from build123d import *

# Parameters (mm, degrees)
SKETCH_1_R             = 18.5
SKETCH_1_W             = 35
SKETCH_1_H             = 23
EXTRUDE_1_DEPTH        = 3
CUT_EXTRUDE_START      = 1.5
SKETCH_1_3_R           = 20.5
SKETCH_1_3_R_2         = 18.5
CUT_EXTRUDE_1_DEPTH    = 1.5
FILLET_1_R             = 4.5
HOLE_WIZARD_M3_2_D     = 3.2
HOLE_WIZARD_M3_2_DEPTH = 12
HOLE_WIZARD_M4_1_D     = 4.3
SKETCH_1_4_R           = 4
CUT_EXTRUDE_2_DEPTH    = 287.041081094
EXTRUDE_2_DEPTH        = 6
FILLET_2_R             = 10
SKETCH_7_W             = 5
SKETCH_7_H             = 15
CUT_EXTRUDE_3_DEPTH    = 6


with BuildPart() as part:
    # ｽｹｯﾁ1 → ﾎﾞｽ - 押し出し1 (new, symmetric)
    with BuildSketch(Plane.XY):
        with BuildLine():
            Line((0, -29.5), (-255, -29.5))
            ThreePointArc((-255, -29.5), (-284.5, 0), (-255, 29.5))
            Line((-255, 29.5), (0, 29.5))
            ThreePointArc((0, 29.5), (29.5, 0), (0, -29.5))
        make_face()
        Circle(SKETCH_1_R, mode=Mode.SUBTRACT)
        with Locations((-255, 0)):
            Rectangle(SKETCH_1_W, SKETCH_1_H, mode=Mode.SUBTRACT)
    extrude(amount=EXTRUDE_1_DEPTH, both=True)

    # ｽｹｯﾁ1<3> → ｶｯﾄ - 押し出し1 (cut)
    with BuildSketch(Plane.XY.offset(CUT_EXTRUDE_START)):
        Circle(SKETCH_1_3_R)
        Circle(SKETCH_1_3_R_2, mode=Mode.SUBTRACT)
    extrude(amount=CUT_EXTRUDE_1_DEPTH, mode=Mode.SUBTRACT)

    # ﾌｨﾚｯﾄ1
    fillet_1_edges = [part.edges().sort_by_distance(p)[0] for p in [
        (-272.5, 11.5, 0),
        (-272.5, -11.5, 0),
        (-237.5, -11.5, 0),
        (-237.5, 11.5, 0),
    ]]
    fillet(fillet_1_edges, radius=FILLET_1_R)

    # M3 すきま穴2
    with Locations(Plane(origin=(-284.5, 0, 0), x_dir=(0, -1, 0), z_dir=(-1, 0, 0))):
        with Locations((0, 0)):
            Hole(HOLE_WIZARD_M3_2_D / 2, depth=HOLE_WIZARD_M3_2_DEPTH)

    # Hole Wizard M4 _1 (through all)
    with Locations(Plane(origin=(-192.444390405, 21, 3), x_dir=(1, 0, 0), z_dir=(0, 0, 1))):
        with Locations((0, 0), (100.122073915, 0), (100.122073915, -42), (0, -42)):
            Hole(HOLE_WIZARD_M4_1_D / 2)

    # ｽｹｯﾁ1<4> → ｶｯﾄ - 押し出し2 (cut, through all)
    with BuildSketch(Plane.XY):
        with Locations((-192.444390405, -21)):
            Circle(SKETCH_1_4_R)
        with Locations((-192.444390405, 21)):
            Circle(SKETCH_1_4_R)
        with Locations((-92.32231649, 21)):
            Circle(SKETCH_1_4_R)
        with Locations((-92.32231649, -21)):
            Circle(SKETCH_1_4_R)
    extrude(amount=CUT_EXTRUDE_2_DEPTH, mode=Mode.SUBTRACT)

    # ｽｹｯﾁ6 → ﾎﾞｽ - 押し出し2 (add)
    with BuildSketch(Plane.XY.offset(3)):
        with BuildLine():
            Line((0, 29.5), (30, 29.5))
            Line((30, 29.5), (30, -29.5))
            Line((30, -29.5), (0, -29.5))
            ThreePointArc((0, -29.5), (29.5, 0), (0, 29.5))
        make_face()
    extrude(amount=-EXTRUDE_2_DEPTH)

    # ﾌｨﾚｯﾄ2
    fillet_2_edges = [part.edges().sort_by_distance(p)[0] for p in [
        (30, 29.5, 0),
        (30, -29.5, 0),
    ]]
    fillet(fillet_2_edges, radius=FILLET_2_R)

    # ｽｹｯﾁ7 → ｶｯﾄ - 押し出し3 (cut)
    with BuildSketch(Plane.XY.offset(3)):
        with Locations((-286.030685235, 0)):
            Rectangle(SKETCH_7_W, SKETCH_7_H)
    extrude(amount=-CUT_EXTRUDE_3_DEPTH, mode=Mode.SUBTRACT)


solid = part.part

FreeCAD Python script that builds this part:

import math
import FreeCAD as App
import Part
import Sketcher
from FreeCAD import Vector


def edges_at(feature, points):
    """Names of the edges that pass closest to the given points."""
    edges = feature.Shape.Edges
    near = lambda p: min(range(len(edges)), key=lambda i: edges[i].distToShape(Part.Vertex(*p))[0])
    return sorted({f"Edge{near(p) + 1}" for p in points})

doc = App.newDocument("Part")
params = doc.addObject("Spreadsheet::Sheet", "Params")
for row, (alias, value) in enumerate([
    ("sketch1_diameter", "37 mm"),
    ("sketch1_radius", "29.5 mm"),
    ("sketch1_width", "255 mm"),
    ("sketch1_width2", "35 mm"),
    ("sketch1_height", "23 mm"),
    ("pad1_length", "6 mm"),
    ("sketch2_diameter", "41 mm"),
    ("sketch2_diameter2", "37 mm"),
    ("pocket1_length", "1.5 mm"),
    ("fillet_radius", "4.5 mm"),
    ("sketch3_diameter", "3.2 mm"),
    ("hole_diameter", "3.2 mm"),
    ("hole_depth", "12 mm"),
    ("sketch4_diameter", "4.3 mm"),
    ("hole2_diameter", "4.3 mm"),
    ("sketch5_diameter", "8 mm"),
    ("sketch6_radius", "29.5 mm"),
    ("sketch6_width", "30 mm"),
    ("pad2_length", "6 mm"),
    ("fillet2_radius", "10 mm"),
    ("sketch7_width", "5 mm"),
    ("sketch7_height", "15 mm"),
    ("pocket3_length", "6 mm"),
], start=1):
    params.set(f"A{row}", alias)
    params.set(f"B{row}", "=" + value)
    params.setAlias(f"B{row}", alias)

body = doc.addObject("PartDesign::Body", "Body")

# Sketch on XY plane
sketch1 = body.newObject("Sketcher::SketchObject", "Sketch")
sketch1.AttachmentSupport = (doc.getObject("XY_Plane"), [""])
sketch1.MapMode = "FlatFace"
sketch1.addGeometry([
    Part.LineSegment(Vector(-255, -29.5, 0), Vector(0, -29.5, 0)),  # 0
    Part.ArcOfCircle(Part.Circle(Vector(0, 0, 0), Vector(0, 0, 1), 29.5), math.radians(-90), math.radians(90)),  # 1
    Part.LineSegment(Vector(0, 29.5, 0), Vector(-255, 29.5, 0)),  # 2
    Part.ArcOfCircle(Part.Circle(Vector(-255, 0, 0), Vector(0, 0, 1), 29.5), math.radians(90), math.radians(270)),  # 3
    Part.Circle(Vector(0, 0, 0), Vector(0, 0, 1), 18.5),  # 4
    Part.LineSegment(Vector(-272.5, -11.5, 0), Vector(-272.5, 11.5, 0)),  # 5
    Part.LineSegment(Vector(-272.5, 11.5, 0), Vector(-237.5, 11.5, 0)),  # 6
    Part.LineSegment(Vector(-237.5, 11.5, 0), Vector(-237.5, -11.5, 0)),  # 7
    Part.LineSegment(Vector(-237.5, -11.5, 0), Vector(-272.5, -11.5, 0)),  # 8
], False)
sketch1.addConstraint([
    Sketcher.Constraint("Tangent", 0, 2, 1, 1),
    Sketcher.Constraint("Tangent", 1, 2, 2, 1),
    Sketcher.Constraint("Tangent", 2, 2, 3, 1),
    Sketcher.Constraint("Tangent", 3, 2, 0, 1),
    Sketcher.Constraint("Coincident", 5, 2, 6, 1),
    Sketcher.Constraint("Coincident", 6, 2, 7, 1),
    Sketcher.Constraint("Coincident", 7, 2, 8, 1),
    Sketcher.Constraint("Coincident", 8, 2, 5, 1),
    Sketcher.Constraint("Horizontal", 0),
    Sketcher.Constraint("Horizontal", 2),
    Sketcher.Constraint("Vertical", 5),
    Sketcher.Constraint("Horizontal", 6),
    Sketcher.Constraint("Vertical", 7),
    Sketcher.Constraint("Horizontal", 8),
    Sketcher.Constraint("Coincident", 1, 3, -1, 1),
    Sketcher.Constraint("Coincident", 4, 3, -1, 1),
    Sketcher.Constraint("Diameter", 4, 37.0),
    Sketcher.Constraint("Radius", 1, 29.5),
    Sketcher.Constraint("DistanceX", 0, 1, 0, 2, 255.0),
    Sketcher.Constraint("DistanceX", 6, 1, 6, 2, 35.0),
    Sketcher.Constraint("DistanceY", 5, 1, 5, 2, 23.0),
    Sketcher.Constraint("DistanceY", 5, 2, 2, 2, 18.0),
    Sketcher.Constraint("DistanceX", 5, 2, -1, 1, 272.5),
])
sketch1.setExpression("Constraints[16]", "Params.sketch1_diameter")
sketch1.setExpression("Constraints[17]", "Params.sketch1_radius")
sketch1.setExpression("Constraints[18]", "Params.sketch1_width")
sketch1.setExpression("Constraints[19]", "Params.sketch1_width2")
sketch1.setExpression("Constraints[20]", "Params.sketch1_height")
pad1 = body.newObject("PartDesign::Pad", "Pad")
pad1.Profile = sketch1
pad1.setExpression("Length", "Params.pad1_length")
pad1.Midplane = True

# Sketch on XY plane
sketch2 = body.newObject("Sketcher::SketchObject", "Sketch001")
sketch2.AttachmentSupport = (doc.getObject("XY_Plane"), [""])
sketch2.MapMode = "FlatFace"
sketch2.AttachmentOffset = App.Placement(Vector(0, 0, 1.5), App.Rotation())
sketch2.addGeometry([
    Part.Circle(Vector(0, 0, 0), Vector(0, 0, 1), 20.5),
    Part.Circle(Vector(0, 0, 0), Vector(0, 0, 1), 18.5),
], False)
sketch2.addConstraint([
    Sketcher.Constraint("Coincident", 0, 3, -1, 1),
    Sketcher.Constraint("Coincident", 1, 3, -1, 1),
    Sketcher.Constraint("Diameter", 0, 41.0),
    Sketcher.Constraint("Diameter", 1, 37.0),
])
sketch2.setExpression("Constraints[2]", "Params.sketch2_diameter")
sketch2.setExpression("Constraints[3]", "Params.sketch2_diameter2")
pocket1 = body.newObject("PartDesign::Pocket", "Pocket")
pocket1.Profile = sketch2
pocket1.setExpression("Length", "Params.pocket1_length")
pocket1.Reversed = True
doc.recompute()

fillet = body.newObject("PartDesign::Fillet", "Fillet")
fillet.Base = (pocket1, edges_at(pocket1, [
    (-272.5, 11.5, 0),
    (-272.5, -11.5, 0),
    (-237.5, -11.5, 0),
    (-237.5, 11.5, 0),
]))
fillet.setExpression("Radius", "Params.fillet_radius")

# Sketch on YZ plane
sketch3 = body.newObject("Sketcher::SketchObject", "Sketch002")
sketch3.AttachmentSupport = (doc.getObject("YZ_Plane"), [""])
sketch3.MapMode = "FlatFace"
sketch3.AttachmentOffset = App.Placement(Vector(0, 0, -284.5), App.Rotation())
sketch3.addGeometry(Part.Circle(Vector(0, 0, 0), Vector(0, 0, 1), 1.6), False)
sketch3.addConstraint([
    Sketcher.Constraint("Coincident", 0, 3, -1, 1),
    Sketcher.Constraint("Diameter", 0, 3.2),
])
sketch3.setExpression("Constraints[1]", "Params.sketch3_diameter")
doc.recompute()
hole = body.newObject("PartDesign::Hole", "Hole")
hole.Profile = sketch3
hole.ThreadType = "None"
hole.setExpression("Diameter", "Params.hole_diameter")
hole.DepthType = "Dimension"
hole.setExpression("Depth", "Params.hole_depth")
hole.DrillPoint = "Flat"
hole.Reversed = True

# Sketch on XY plane
sketch4 = body.newObject("Sketcher::SketchObject", "Sketch003")
sketch4.AttachmentSupport = (doc.getObject("XY_Plane"), [""])
sketch4.MapMode = "FlatFace"
sketch4.AttachmentOffset = App.Placement(Vector(0, 0, 3), App.Rotation())
sketch4.addGeometry([
    Part.Circle(Vector(-192.44439, 21, 0), Vector(0, 0, 1), 2.15),
    Part.Circle(Vector(-92.322316, 21, 0), Vector(0, 0, 1), 2.15),
    Part.Circle(Vector(-92.322316, -21, 0), Vector(0, 0, 1), 2.15),
    Part.Circle(Vector(-192.44439, -21, 0), Vector(0, 0, 1), 2.15),
], False)
sketch4.addConstraint([
    Sketcher.Constraint("Equal", 0, 1),
    Sketcher.Constraint("Equal", 1, 2),
    Sketcher.Constraint("Equal", 2, 3),
    Sketcher.Constraint("Symmetric", 1, 3, 2, 3, -1),
    Sketcher.Constraint("Symmetric", 0, 3, 3, 3, -1),
    Sketcher.Constraint("Horizontal", 0, 3, 1, 3),
    Sketcher.Constraint("Diameter", 0, 4.3),
    Sketcher.Constraint("DistanceY", -1, 1, 0, 3, 21.0),
    Sketcher.Constraint("DistanceX", 0, 3, -1, 1, 192.44439),
    Sketcher.Constraint("DistanceX", 1, 3, -1, 1, 92.322316),
])
sketch4.setExpression("Constraints[6]", "Params.sketch4_diameter")
doc.recompute()
hole2 = body.newObject("PartDesign::Hole", "Hole001")
hole2.Profile = sketch4
hole2.ThreadType = "None"
hole2.setExpression("Diameter", "Params.hole2_diameter")
hole2.DepthType = "ThroughAll"

# Sketch on XY plane
sketch5 = body.newObject("Sketcher::SketchObject", "Sketch004")
sketch5.AttachmentSupport = (doc.getObject("XY_Plane"), [""])
sketch5.MapMode = "FlatFace"
sketch5.addGeometry([
    Part.Circle(Vector(-192.44439, -21, 0), Vector(0, 0, 1), 4),
    Part.Circle(Vector(-192.44439, 21, 0), Vector(0, 0, 1), 4),
    Part.Circle(Vector(-92.322316, 21, 0), Vector(0, 0, 1), 4),
    Part.Circle(Vector(-92.322316, -21, 0), Vector(0, 0, 1), 4),
], False)
sketch5.addConstraint([
    Sketcher.Constraint("Equal", 0, 1),
    Sketcher.Constraint("Equal", 1, 2),
    Sketcher.Constraint("Equal", 2, 3),
    Sketcher.Constraint("Symmetric", 0, 3, 1, 3, -1),
    Sketcher.Constraint("Symmetric", 2, 3, 3, 3, -1),
    Sketcher.Constraint("Horizontal", 1, 3, 2, 3),
    Sketcher.Constraint("Diameter", 0, 8.0),
    Sketcher.Constraint("DistanceY", 0, 3, -1, 1, 21.0),
    Sketcher.Constraint("DistanceX", 0, 3, -1, 1, 192.44439),
    Sketcher.Constraint("DistanceX", 2, 3, -1, 1, 92.322316),
])
sketch5.setExpression("Constraints[6]", "Params.sketch5_diameter")
pocket2 = body.newObject("PartDesign::Pocket", "Pocket001")
pocket2.Profile = sketch5
pocket2.Type = "ThroughAll"
pocket2.Reversed = True

# Sketch on XY plane
sketch6 = body.newObject("Sketcher::SketchObject", "Sketch005")
sketch6.AttachmentSupport = (doc.getObject("XY_Plane"), [""])
sketch6.MapMode = "FlatFace"
sketch6.AttachmentOffset = App.Placement(Vector(0, 0, 3), App.Rotation())
sketch6.addGeometry([
    Part.LineSegment(Vector(30, 29.5, 0), Vector(0, 29.5, 0)),
    Part.ArcOfCircle(Part.Circle(Vector(0, 0, 0), Vector(0, 0, 1), 29.5), math.radians(-90), math.radians(90)),
    Part.LineSegment(Vector(0, -29.5, 0), Vector(30, -29.5, 0)),
    Part.LineSegment(Vector(30, -29.5, 0), Vector(30, 29.5, 0)),
], False)
sketch6.addConstraint([
    Sketcher.Constraint("Tangent", 0, 2, 1, 2),
    Sketcher.Constraint("Tangent", 1, 1, 2, 1),
    Sketcher.Constraint("Coincident", 2, 2, 3, 1),
    Sketcher.Constraint("Coincident", 3, 2, 0, 1),
    Sketcher.Constraint("Horizontal", 0),
    Sketcher.Constraint("Horizontal", 2),
    Sketcher.Constraint("Vertical", 3),
    Sketcher.Constraint("Coincident", 1, 3, -1, 1),
    Sketcher.Constraint("Radius", 1, 29.5),
    Sketcher.Constraint("DistanceX", 0, 2, 0, 1, 30.0),
])
sketch6.setExpression("Constraints[8]", "Params.sketch6_radius")
sketch6.setExpression("Constraints[9]", "Params.sketch6_width")
pad2 = body.newObject("PartDesign::Pad", "Pad001")
pad2.Profile = sketch6
pad2.setExpression("Length", "Params.pad2_length")
pad2.Reversed = True
doc.recompute()

fillet2 = body.newObject("PartDesign::Fillet", "Fillet001")
fillet2.Base = (pad2, edges_at(pad2, [(30, 29.5, 0), (30, -29.5, 0)]))
fillet2.setExpression("Radius", "Params.fillet2_radius")

# Sketch on XY plane
sketch7 = body.newObject("Sketcher::SketchObject", "Sketch006")
sketch7.AttachmentSupport = (doc.getObject("XY_Plane"), [""])
sketch7.MapMode = "FlatFace"
sketch7.AttachmentOffset = App.Placement(Vector(0, 0, 3), App.Rotation())
sketch7.addGeometry([
    Part.LineSegment(Vector(-288.530685, 7.5, 0), Vector(-288.530685, -7.5, 0)),
    Part.LineSegment(Vector(-288.530685, -7.5, 0), Vector(-283.530685, -7.5, 0)),
    Part.LineSegment(Vector(-283.530685, -7.5, 0), Vector(-283.530685, 7.5, 0)),
    Part.LineSegment(Vector(-283.530685, 7.5, 0), Vector(-288.530685, 7.5, 0)),
], False)
sketch7.addConstraint([
    Sketcher.Constraint("Coincident", 0, 2, 1, 1),
    Sketcher.Constraint("Coincident", 1, 2, 2, 1),
    Sketcher.Constraint("Coincident", 2, 2, 3, 1),
    Sketcher.Constraint("Coincident", 3, 2, 0, 1),
    Sketcher.Constraint("Vertical", 0),
    Sketcher.Constraint("Horizontal", 1),
    Sketcher.Constraint("Vertical", 2),
    Sketcher.Constraint("Horizontal", 3),
    Sketcher.Constraint("DistanceX", 1, 1, 1, 2, 5.0),
    Sketcher.Constraint("DistanceY", 0, 2, 0, 1, 15.0),
    Sketcher.Constraint("DistanceY", 0, 2, -1, 1, 7.5),
    Sketcher.Constraint("DistanceX", 0, 2, -1, 1, 288.530685),
])
sketch7.setExpression("Constraints[8]", "Params.sketch7_width")
sketch7.setExpression("Constraints[9]", "Params.sketch7_height")
pocket3 = body.newObject("PartDesign::Pocket", "Pocket002")
pocket3.Profile = sketch7
pocket3.setExpression("Length", "Params.pocket3_length")

doc.recompute()
